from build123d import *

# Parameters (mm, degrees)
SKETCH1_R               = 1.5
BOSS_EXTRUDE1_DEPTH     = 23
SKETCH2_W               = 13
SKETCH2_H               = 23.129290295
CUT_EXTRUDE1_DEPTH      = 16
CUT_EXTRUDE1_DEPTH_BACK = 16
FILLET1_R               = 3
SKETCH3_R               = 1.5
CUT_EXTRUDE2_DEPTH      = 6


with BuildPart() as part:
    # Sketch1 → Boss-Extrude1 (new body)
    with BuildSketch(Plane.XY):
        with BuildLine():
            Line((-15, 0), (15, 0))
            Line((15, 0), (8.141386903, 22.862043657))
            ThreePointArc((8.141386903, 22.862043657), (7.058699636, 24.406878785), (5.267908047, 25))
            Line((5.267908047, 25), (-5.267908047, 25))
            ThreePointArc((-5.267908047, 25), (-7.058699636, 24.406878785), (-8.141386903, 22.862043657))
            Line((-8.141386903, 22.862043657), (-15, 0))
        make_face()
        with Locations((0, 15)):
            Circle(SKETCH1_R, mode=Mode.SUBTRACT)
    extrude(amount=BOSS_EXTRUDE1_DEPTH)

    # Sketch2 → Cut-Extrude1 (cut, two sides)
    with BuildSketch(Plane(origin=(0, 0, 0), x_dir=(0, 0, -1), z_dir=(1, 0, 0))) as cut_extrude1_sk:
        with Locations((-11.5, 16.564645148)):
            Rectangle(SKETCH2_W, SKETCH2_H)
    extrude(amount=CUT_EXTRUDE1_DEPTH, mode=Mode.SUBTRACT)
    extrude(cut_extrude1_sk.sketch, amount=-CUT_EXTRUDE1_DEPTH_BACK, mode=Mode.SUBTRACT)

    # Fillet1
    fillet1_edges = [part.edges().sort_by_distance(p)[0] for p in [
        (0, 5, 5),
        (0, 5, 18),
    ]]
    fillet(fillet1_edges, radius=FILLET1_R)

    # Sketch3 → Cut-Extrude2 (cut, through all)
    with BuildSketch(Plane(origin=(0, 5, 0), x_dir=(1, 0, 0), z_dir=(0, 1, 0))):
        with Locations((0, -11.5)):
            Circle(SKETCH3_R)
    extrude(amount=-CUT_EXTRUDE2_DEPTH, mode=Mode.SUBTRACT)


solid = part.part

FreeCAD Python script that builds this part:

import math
import FreeCAD as App
import Part
import Sketcher

V = App.Vector
Q = App.Units.Quantity


def edges_at(feature, points):
    """Names of the edges that pass closest to the given points."""
    edges = feature.Shape.Edges
    near = lambda p: min(range(len(edges)), key=lambda i: edges[i].distToShape(Part.Vertex(*p))[0])
    return sorted({f"Edge{near(p) + 1}" for p in points})


def add_polygon(sketch, points):
    """Adds a closed chain of lines whose ends are joined by coincident constraints."""
    first, n = sketch.GeometryCount, len(points)
    for a, b in zip(points, points[1:] + points[:1]):
        sketch.addGeometry(Part.LineSegment(App.Vector(*a, 0), App.Vector(*b, 0)), False)
    for i in range(n):
        sketch.addConstraint(Sketcher.Constraint("Coincident", first + i, 2, first + (i + 1) % n, 1))

doc = App.newDocument("Part")
params = doc.addObject("Spreadsheet::Sheet", "Params")
for row, (alias, value) in enumerate([
    ("sketch1_diameter", "3 mm"),
    ("sketch1_radius", "3 mm"),
    ("sketch1_width", "30 mm"),
    ("pad1_length", "23 mm"),
    ("sketch2_height", "13 mm"),
    ("fillet_radius", "3 mm"),
    ("sketch3_diameter", "3 mm"),
], start=1):
    params.set(f"A{row}", alias)
    params.set(f"B{row}", "=" + value)
    params.setAlias(f"B{row}", alias)

body = doc.addObject("PartDesign::Body", "Body")

sketch1 = doc.addObject("Sketcher::SketchObject", "Sketch")
body.addObject(sketch1)
sketch1.AttachmentSupport = (doc.XY_Plane, [""])
sketch1.MapMode = "FlatFace"
sketch1.addGeometry([
    Part.LineSegment(V(-15, 0, 0), V(15, 0, 0)),
    Part.LineSegment(V(15, 0, 0), V(8.1, 22.9, 0)),
    Part.ArcOfCircle(Part.Circle(V(5.3, 22, 0), V(0, 0, 1), 3), math.radians(17), math.radians(90)),
    Part.LineSegment(V(5.3, 25, 0), V(-5.3, 25, 0)),
    Part.ArcOfCircle(Part.Circle(V(-5.3, 22, 0), V(0, 0, 1), 3), math.radians(90), math.radians(163)),
    Part.LineSegment(V(-8.1, 22.9, 0), V(-15, 0, 0)),
    Part.Circle(V(0, 15, 0), V(0, 0, 1), 1.5),
], False)
sketch1.addConstraint([
    Sketcher.Constraint("Coincident", 0, 2, 1, 1),
    Sketcher.Constraint("Tangent", 1, 2, 2, 1),
    Sketcher.Constraint("Tangent", 2, 2, 3, 1),
    Sketcher.Constraint("Tangent", 3, 2, 4, 1),
    Sketcher.Constraint("Tangent", 4, 2, 5, 1),
    Sketcher.Constraint("Coincident", 5, 2, 0, 1),
    Sketcher.Constraint("Horizontal", 0),
    Sketcher.Constraint("Horizontal", 3),
    Sketcher.Constraint("Equal", 2, 4),
    Sketcher.Constraint("Symmetric", 0, 2, 5, 2, -1, 1),
    Sketcher.Constraint("PointOnObject", 6, 3, -2),
    Sketcher.Constraint("Horizontal", 1, 2, 4, 2),
    Sketcher.Constraint("Diameter", 6, Q("3 mm")),
    Sketcher.Constraint("Radius", 2, Q("3 mm")),
    Sketcher.Constraint("DistanceX", 0, 1, 0, 2, Q("30 mm")),
    Sketcher.Constraint("DistanceY", -1, 1, 2, 3, Q("22 mm")),
    Sketcher.Constraint("DistanceY", -1, 1, 6, 3, Q("15 mm")),
    Sketcher.Constraint("DistanceX", 3, 2, 3, 1, Q("10.535816 mm")),
])
sketch1.setExpression("Constraints[12]", "Params.sketch1_diameter")
sketch1.setExpression("Constraints[13]", "Params.sketch1_radius")
sketch1.setExpression("Constraints[14]", "Params.sketch1_width")
pad1 = doc.addObject("PartDesign::Pad", "Pad")
body.addObject(pad1)
pad1.Profile = sketch1
pad1.setExpression("Length", "Params.pad1_length")

sketch2 = doc.addObject("Sketcher::SketchObject", "Sketch001")
body.addObject(sketch2)
sketch2.AttachmentSupport = (doc.YZ_Plane, [""])
sketch2.MapMode = "FlatFace"
add_polygon(sketch2, [(28, 18), (5, 18), (5, 5), (28, 5)])
sketch2.addConstraint([
    Sketcher.Constraint("Horizontal", 0),
    Sketcher.Constraint("Vertical", 1),
    Sketcher.Constraint("Horizontal", 2),
    Sketcher.Constraint("Vertical", 3),
    Sketcher.Constraint("DistanceY", 1, 2, 1, 1, Q("13 mm")),
    Sketcher.Constraint("DistanceX", -1, 1, 0, 2, Q("5 mm")),
    Sketcher.Constraint("DistanceY", -1, 1, 0, 2, Q("18 mm")),
    Sketcher.Constraint("DistanceX", 0, 2, 0, 1, Q("23.12929 mm")),
])
sketch2.setExpression("Constraints[8]", "Params.sketch2_height")
pocket1 = doc.addObject("PartDesign::Pocket", "Pocket")
body.addObject(pocket1)
pocket1.Profile = sketch2
pocket1.Type = "ThroughAll"
pocket1.Midplane = True
doc.recompute()

fillet = doc.addObject("PartDesign::Fillet", "Fillet")
body.addObject(fillet)
fillet.Base = (pocket1, edges_at(pocket1, [(0, 5, 5), (0, 5, 18)]))
fillet.setExpression("Radius", "Params.fillet_radius")

sketch3 = doc.addObject("Sketcher::SketchObject", "Sketch002")
body.addObject(sketch3)
sketch3.AttachmentSupport = (doc.XZ_Plane, [""])
sketch3.MapMode = "FlatFace"
sketch3.AttachmentOffset = App.Placement(V(0, 0, -5), App.Rotation())
sketch3.addGeometry(Part.Circle(V(0, 11.5, 0), V(0, 0, 1), 1.5), False)
sketch3.addConstraint([
    Sketcher.Constraint("PointOnObject", 0, 3, -2),
    Sketcher.Constraint("Diameter", 0, Q("3 mm")),
    Sketcher.Constraint("DistanceY", -1, 1, 0, 3, Q("11.5 mm")),
])
sketch3.setExpression("Constraints[1]", "Params.sketch3_diameter")
pocket2 = doc.addObject("PartDesign::Pocket", "Pocket001")
body.addObject(pocket2)
pocket2.Profile = sketch3
pocket2.Type = "ThroughAll"
pocket2.Reversed = True

doc.recompute()
